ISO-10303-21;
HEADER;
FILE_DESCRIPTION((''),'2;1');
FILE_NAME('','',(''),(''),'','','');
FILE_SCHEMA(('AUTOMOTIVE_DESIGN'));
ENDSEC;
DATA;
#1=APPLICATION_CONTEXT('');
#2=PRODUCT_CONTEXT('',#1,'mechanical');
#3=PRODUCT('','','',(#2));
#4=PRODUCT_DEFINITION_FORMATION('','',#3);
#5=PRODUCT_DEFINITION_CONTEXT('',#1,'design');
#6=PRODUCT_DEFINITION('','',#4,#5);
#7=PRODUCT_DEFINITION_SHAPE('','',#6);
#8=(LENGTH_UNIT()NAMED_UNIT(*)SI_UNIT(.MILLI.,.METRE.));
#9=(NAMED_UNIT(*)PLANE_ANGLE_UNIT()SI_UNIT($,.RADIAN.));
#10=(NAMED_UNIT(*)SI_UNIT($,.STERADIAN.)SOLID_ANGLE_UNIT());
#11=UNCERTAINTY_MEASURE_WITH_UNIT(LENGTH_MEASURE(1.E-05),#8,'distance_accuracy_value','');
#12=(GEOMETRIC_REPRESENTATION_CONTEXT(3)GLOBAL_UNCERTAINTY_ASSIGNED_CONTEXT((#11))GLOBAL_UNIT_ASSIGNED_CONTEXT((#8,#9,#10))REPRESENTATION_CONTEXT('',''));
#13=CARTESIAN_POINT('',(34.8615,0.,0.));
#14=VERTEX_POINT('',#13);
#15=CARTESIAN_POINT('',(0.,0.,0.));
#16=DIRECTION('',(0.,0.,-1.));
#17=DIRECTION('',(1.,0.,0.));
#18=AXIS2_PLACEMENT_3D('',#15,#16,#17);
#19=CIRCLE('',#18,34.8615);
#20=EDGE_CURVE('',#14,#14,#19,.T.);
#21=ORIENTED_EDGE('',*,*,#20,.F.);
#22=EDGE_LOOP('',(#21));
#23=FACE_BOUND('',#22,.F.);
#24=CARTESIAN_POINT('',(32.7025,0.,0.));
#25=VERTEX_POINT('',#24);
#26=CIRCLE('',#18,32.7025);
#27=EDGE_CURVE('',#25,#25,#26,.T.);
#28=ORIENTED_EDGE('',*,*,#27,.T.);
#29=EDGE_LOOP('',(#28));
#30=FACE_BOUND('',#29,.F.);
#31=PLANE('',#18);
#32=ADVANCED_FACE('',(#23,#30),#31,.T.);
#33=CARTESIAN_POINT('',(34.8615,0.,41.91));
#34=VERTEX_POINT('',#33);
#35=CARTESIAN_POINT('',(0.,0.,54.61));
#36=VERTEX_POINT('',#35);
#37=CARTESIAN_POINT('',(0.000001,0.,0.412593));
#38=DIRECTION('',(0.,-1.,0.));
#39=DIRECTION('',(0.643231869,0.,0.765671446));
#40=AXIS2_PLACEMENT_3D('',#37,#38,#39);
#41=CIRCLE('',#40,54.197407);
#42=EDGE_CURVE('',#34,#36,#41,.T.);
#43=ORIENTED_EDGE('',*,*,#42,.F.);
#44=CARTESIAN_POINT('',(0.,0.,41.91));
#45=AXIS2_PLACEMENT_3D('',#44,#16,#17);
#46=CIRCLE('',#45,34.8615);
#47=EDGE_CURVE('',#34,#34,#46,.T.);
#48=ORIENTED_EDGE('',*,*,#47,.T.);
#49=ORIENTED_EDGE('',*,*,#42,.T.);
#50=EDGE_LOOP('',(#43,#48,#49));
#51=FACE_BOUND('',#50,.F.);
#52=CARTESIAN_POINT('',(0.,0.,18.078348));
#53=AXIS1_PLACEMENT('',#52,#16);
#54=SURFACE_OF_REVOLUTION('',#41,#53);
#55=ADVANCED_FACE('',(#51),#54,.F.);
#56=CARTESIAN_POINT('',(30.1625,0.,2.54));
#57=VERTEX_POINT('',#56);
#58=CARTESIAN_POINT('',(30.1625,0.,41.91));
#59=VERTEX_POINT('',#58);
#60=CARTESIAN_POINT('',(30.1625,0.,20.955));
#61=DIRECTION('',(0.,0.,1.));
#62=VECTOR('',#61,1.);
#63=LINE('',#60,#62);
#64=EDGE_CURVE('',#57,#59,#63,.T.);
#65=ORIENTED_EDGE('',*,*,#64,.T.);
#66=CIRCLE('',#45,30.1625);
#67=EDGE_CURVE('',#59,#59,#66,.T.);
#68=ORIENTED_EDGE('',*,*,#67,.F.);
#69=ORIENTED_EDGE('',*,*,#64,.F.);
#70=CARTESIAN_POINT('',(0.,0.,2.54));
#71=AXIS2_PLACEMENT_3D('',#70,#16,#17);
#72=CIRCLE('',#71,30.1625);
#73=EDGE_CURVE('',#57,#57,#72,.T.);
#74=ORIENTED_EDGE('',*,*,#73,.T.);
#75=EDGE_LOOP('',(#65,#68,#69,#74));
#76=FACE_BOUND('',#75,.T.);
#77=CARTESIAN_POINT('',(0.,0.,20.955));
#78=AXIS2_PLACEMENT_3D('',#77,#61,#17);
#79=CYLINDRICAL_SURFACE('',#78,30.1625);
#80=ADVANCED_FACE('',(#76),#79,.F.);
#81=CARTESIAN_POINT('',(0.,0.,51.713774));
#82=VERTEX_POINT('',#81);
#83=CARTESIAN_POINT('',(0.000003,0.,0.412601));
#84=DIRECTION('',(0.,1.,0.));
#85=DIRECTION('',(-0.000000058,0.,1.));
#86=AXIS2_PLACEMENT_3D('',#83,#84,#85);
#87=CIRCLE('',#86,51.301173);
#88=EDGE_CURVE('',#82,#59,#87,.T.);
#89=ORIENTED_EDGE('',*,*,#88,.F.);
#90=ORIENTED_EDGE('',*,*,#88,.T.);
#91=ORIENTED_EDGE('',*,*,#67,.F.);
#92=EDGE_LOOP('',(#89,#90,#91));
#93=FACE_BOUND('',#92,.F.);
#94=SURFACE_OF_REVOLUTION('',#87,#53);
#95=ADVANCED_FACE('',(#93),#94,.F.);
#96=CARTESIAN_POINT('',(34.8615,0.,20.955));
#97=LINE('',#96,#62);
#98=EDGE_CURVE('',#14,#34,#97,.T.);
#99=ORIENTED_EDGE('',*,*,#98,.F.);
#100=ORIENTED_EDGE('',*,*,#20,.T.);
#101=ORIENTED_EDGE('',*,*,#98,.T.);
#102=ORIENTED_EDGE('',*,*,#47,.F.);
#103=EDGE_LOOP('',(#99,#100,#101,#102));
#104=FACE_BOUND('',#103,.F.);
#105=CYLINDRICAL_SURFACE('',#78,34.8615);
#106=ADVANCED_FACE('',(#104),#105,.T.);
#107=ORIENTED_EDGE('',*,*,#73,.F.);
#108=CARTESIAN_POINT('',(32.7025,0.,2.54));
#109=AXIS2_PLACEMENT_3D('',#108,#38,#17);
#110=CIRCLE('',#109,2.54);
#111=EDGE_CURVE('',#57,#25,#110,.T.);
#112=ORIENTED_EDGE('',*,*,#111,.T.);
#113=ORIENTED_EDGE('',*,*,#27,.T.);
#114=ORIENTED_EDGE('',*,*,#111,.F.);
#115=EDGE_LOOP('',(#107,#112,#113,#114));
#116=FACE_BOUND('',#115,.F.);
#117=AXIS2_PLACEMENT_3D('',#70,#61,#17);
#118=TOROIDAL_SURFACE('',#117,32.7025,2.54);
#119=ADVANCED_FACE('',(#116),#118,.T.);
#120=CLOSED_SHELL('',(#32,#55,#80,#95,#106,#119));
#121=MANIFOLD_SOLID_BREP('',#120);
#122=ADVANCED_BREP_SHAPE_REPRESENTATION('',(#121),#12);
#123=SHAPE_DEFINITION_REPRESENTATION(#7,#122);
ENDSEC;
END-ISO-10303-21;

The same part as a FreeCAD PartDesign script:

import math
import FreeCAD as App
import Part
import Sketcher

V = App.Vector
Q = App.Units.Quantity


def edges_at(feature, points):
    """Names of the edges that pass closest to the given points."""
    edges = feature.Shape.Edges
    near = lambda p: min(range(len(edges)), key=lambda i: edges[i].distToShape(Part.Vertex(*p))[0])
    return sorted({f"Edge{near(p) + 1}" for p in points})

doc = App.newDocument("Part")
params = doc.addObject("Spreadsheet::Sheet", "Params")
for row, (alias, value) in enumerate([
    ("sketch1_height", "1.65 in"),
    ("sketch1_width", "0.185 in"),
    ("revolution_angle", "360 deg"),
    ("fillet_radius", "0.1 in"),
], start=1):
    params.set(f"A{row}", alias)
    params.set(f"B{row}", "=" + value)
    params.setAlias(f"B{row}", alias)

body = doc.addObject("PartDesign::Body", "Body")

# Sketch on XZ plane
sketch1 = body.newObject("Sketcher::SketchObject", "Sketch")
sketch1.AttachmentSupport = (doc.getObject("XZ_Plane"), [""])
sketch1.MapMode = "FlatFace"
sketch1.addGeometry(Part.ArcOfCircle(Part.Circle(V(0, 0.4, 0), V(0, 0, 1), 51.3), math.radians(54), math.radians(90)), False)
sketch1.addGeometry(Part.LineSegment(V(30.2, 41.9, 0), V(30.2, 0, 0)), False)
sketch1.addGeometry(Part.LineSegment(V(30.2, 0, 0), V(34.9, 0, 0)), False)
sketch1.addGeometry(Part.LineSegment(V(34.9, 0, 0), V(34.9, 41.9, 0)), False)
sketch1.addGeometry(Part.ArcOfCircle(Part.Circle(V(0, 0.4, 0), V(0, 0, 1), 54.2), math.radians(50), math.radians(90)), False)
sketch1.addGeometry(Part.LineSegment(V(0, 54.6, 0), V(0, 51.7, 0)), False)
sketch1.addConstraint(Sketcher.Constraint("Coincident", 0, 1, 1, 1))
sketch1.addConstraint(Sketcher.Constraint("Coincident", 1, 2, 2, 1))
sketch1.addConstraint(Sketcher.Constraint("Coincident", 2, 2, 3, 1))
sketch1.addConstraint(Sketcher.Constraint("Coincident", 3, 2, 4, 1))
sketch1.addConstraint(Sketcher.Constraint("Coincident", 4, 2, 5, 1))
sketch1.addConstraint(Sketcher.Constraint("Coincident", 5, 2, 0, 2))
sketch1.addConstraint(Sketcher.Constraint("Vertical", 1))
sketch1.addConstraint(Sketcher.Constraint("Horizontal", 2))
sketch1.addConstraint(Sketcher.Constraint("Vertical", 3))
sketch1.addConstraint(Sketcher.Constraint("Vertical", 5))
sketch1.addConstraint(Sketcher.Constraint("Coincident", 4, 3, 0, 3))
sketch1.addConstraint(Sketcher.Constraint("PointOnObject", 4, 3, -2))
sketch1.addConstraint(Sketcher.Constraint("PointOnObject", 1, 2, -1))
sketch1.addConstraint(Sketcher.Constraint("PointOnObject", 4, 2, -2))
sketch1.addConstraint(Sketcher.Constraint("Horizontal", 0, 1, 3, 2))
sketch1.addConstraint(Sketcher.Constraint("DistanceY", 1, 2, 1, 1, Q("1.65 in")))
sketch1.addConstraint(Sketcher.Constraint("DistanceY", 0, 1, 4, 2, Q("0.5 in")))
sketch1.addConstraint(Sketcher.Constraint("DistanceX", 2, 1, 2, 2, Q("0.185 in")))
sketch1.addConstraint(Sketcher.Constraint("DistanceX", -1, 1, 0, 1, Q("1.1875 in")))
sketch1.setExpression("Constraints[15]", "Params.sketch1_height")
sketch1.setExpression("Constraints[17]", "Params.sketch1_width")
revolution = body.newObject("PartDesign::Revolution", "Revolution")
revolution.Profile = sketch1
revolution.ReferenceAxis = (sketch1, ["V_Axis"])
revolution.setExpression("Angle", "Params.revolution_angle")
doc.recompute()

fillet = body.newObject("PartDesign::Fillet", "Fillet")
fillet.Base = (revolution, edges_at(revolution, [(-30.163, 0, 0)]))
fillet.setExpression("Radius", "Params.fillet_radius")

doc.recompute()
